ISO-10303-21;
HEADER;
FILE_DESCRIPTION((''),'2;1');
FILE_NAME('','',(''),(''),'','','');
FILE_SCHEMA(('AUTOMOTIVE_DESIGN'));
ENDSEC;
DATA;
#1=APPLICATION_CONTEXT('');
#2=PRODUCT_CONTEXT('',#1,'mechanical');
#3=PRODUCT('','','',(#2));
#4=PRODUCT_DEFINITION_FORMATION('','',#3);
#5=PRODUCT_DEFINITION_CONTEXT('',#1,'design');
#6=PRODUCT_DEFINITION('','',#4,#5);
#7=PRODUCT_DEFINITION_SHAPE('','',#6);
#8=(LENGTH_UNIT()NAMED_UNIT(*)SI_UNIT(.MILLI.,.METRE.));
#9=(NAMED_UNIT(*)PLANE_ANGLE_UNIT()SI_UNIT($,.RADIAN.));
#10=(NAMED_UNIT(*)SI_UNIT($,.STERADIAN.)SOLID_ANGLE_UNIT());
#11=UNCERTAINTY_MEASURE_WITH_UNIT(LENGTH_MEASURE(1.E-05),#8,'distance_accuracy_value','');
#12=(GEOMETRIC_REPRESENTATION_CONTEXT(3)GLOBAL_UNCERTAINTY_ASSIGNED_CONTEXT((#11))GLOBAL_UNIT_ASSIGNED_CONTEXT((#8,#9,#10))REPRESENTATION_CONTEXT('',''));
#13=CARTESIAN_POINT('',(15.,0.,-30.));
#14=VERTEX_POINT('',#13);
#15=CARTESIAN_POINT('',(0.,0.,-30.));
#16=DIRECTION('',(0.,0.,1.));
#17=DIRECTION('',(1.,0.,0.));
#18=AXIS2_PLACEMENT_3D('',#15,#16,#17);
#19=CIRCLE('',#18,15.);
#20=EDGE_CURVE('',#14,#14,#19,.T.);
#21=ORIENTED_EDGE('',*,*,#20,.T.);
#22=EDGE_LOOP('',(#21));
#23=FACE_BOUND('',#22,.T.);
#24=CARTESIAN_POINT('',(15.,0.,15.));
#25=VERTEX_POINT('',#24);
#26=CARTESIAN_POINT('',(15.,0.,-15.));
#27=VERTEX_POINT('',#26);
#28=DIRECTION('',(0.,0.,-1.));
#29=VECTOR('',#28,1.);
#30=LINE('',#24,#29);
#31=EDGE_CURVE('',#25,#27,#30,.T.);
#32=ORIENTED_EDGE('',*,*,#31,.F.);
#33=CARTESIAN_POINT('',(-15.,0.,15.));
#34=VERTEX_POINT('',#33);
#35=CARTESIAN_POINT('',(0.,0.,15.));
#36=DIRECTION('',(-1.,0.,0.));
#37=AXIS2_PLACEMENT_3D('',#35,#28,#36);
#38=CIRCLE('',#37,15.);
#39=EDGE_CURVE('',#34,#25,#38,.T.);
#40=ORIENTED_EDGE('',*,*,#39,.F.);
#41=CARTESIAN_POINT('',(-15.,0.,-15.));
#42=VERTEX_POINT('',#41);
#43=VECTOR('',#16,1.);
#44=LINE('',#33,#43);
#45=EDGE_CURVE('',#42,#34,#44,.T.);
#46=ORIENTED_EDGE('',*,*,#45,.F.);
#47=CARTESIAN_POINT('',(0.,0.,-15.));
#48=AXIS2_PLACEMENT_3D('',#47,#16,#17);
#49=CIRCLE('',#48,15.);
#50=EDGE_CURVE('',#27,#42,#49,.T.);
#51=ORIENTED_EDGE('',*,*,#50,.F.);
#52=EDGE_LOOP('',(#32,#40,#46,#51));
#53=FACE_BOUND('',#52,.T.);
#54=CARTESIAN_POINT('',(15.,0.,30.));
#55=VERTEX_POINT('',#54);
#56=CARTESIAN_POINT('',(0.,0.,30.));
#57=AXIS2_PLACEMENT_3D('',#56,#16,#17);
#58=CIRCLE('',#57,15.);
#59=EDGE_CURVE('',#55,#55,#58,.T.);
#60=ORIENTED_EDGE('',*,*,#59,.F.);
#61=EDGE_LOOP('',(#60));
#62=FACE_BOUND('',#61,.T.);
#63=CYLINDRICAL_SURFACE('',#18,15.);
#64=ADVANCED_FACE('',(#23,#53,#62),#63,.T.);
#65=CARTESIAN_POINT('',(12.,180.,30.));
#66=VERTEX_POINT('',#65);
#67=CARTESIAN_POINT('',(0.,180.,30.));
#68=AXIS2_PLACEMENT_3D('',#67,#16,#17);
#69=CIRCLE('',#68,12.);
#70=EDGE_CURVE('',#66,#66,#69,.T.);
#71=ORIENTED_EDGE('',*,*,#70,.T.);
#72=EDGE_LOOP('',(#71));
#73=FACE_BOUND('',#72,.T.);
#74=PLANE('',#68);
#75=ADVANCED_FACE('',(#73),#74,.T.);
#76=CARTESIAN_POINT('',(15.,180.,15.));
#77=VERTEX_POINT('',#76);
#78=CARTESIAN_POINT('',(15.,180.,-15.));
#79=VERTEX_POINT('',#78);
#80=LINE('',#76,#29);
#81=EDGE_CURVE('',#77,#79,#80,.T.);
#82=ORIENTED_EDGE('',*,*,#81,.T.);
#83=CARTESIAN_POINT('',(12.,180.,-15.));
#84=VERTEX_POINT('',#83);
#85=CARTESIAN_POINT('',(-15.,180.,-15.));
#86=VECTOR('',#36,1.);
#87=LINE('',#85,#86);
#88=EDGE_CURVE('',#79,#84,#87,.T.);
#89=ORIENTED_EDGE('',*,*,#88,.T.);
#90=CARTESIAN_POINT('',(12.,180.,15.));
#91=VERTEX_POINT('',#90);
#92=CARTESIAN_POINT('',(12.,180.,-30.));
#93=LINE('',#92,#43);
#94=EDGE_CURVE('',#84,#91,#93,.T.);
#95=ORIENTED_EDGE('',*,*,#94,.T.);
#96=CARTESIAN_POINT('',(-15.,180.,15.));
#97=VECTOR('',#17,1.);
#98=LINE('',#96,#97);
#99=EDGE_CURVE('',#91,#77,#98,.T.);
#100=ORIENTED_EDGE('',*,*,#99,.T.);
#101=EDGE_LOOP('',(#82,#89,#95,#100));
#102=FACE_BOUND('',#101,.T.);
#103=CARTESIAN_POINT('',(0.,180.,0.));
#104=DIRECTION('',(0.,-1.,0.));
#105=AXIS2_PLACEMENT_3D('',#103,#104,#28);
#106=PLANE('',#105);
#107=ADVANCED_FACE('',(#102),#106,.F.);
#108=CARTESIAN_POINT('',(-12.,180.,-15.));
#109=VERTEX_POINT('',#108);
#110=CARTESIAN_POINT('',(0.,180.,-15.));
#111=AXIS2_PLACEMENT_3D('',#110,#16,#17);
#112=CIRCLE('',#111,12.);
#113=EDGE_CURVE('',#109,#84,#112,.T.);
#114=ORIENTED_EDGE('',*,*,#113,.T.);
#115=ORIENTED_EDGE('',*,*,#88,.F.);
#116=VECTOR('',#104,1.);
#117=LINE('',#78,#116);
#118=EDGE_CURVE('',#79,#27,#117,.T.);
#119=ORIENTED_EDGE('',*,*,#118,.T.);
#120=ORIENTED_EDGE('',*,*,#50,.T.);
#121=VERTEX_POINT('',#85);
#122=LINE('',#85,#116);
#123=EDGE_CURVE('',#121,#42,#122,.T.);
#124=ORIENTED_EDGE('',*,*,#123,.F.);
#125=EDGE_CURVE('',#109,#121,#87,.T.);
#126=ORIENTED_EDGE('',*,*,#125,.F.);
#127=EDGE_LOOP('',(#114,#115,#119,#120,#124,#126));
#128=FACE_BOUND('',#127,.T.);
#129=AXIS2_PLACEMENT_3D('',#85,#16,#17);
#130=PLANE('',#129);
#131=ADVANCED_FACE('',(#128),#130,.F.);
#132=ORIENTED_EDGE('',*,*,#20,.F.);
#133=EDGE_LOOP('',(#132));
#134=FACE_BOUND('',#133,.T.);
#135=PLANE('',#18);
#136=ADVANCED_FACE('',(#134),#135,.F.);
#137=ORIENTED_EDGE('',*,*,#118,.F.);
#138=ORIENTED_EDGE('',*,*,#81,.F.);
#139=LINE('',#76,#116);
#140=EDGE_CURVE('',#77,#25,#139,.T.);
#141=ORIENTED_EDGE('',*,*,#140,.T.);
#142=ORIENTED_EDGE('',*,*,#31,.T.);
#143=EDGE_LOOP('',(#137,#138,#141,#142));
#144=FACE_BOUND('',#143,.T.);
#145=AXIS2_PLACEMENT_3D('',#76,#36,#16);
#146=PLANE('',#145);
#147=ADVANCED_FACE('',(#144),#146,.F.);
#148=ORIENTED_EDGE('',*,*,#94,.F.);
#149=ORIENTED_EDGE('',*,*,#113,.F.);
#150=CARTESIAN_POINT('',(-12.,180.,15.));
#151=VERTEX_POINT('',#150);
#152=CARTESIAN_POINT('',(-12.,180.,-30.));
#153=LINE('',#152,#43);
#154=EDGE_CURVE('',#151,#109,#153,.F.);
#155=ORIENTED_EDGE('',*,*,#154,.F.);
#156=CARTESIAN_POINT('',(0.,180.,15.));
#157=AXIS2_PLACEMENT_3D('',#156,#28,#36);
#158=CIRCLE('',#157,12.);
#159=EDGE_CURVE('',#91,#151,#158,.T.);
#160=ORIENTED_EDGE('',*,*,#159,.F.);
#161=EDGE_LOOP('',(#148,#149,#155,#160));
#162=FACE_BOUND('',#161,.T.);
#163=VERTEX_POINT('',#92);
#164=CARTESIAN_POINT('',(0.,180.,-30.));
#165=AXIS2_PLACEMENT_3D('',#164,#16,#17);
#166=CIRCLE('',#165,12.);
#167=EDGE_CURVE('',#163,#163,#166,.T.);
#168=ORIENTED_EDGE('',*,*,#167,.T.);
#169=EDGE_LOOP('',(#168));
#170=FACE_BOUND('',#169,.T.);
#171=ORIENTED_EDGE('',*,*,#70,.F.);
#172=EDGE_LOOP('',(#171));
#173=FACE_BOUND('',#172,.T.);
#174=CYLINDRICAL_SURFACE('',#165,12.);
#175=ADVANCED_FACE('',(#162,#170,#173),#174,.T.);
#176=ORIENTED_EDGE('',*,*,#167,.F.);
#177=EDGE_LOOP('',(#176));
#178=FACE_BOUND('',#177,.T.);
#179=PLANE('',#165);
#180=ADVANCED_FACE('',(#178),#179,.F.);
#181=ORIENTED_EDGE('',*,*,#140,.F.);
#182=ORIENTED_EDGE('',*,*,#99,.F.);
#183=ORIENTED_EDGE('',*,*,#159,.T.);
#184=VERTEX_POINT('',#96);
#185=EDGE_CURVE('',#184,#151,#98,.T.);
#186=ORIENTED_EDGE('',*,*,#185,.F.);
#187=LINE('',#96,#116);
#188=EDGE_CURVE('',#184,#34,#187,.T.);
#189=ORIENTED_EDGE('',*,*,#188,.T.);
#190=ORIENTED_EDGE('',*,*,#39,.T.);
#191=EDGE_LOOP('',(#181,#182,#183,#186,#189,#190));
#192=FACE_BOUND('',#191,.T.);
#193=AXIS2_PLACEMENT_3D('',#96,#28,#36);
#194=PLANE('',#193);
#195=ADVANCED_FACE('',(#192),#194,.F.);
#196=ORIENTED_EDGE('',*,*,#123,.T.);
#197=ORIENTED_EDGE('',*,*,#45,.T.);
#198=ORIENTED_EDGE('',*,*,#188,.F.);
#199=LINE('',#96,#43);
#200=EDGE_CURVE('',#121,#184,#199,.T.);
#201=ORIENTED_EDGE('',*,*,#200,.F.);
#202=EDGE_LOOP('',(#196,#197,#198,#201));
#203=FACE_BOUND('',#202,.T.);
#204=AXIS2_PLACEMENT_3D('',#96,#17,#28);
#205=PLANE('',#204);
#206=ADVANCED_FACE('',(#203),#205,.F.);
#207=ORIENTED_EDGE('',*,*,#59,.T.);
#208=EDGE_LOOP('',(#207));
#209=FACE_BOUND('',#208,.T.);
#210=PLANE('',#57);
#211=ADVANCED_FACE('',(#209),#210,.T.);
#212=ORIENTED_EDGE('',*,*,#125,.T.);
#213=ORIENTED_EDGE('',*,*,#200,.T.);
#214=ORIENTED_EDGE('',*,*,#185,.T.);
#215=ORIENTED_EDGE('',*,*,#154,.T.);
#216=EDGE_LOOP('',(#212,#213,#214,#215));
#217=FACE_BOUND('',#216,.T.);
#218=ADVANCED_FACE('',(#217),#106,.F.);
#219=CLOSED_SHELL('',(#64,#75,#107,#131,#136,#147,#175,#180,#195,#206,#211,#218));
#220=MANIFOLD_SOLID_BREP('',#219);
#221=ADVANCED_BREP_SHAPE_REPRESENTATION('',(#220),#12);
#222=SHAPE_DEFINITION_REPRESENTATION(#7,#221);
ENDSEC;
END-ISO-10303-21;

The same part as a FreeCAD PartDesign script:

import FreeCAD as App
import Part
import Sketcher

doc = App.newDocument("Part")
body = doc.addObject("PartDesign::Body", "Body")

sketch1 = body.newObject("Sketcher::SketchObject", "Sketch")
sketch1.AttachmentSupport = (doc.getObject("XZ_Plane"), [""])
sketch1.MapMode = "FlatFace"
sketch1.addGeometry([
    Part.LineSegment(App.Vector(-15, -15, 0), App.Vector(-15, 15, 0)),
    Part.LineSegment(App.Vector(-15, 15, 0), App.Vector(15, 15, 0)),
    Part.LineSegment(App.Vector(15, 15, 0), App.Vector(15, -15, 0)),
    Part.LineSegment(App.Vector(15, -15, 0), App.Vector(-15, -15, 0)),
], False)
sketch1.addConstraint([
    Sketcher.Constraint("Coincident", 0, 2, 1, 1),
    Sketcher.Constraint("Coincident", 1, 2, 2, 1),
    Sketcher.Constraint("Coincident", 2, 2, 3, 1),
    Sketcher.Constraint("Coincident", 3, 2, 0, 1),
    Sketcher.Constraint("Vertical", 0),
    Sketcher.Constraint("Horizontal", 1),
    Sketcher.Constraint("Vertical", 2),
    Sketcher.Constraint("Horizontal", 3),
    Sketcher.Constraint("Symmetric", 0, 2, 2, 2, -1, 1),
    Sketcher.Constraint("Equal", 3, 0),
    Sketcher.Constraint("DistanceX", 1, 1, 1, 2, 30.0),
])
pad1 = body.newObject("PartDesign::Pad", "Pad")
pad1.Profile = sketch1
pad1.Length = 180
pad1.Reversed = True

sketch2 = body.newObject("Sketcher::SketchObject", "Sketch001")
sketch2.AttachmentSupport = (doc.getObject("XY_Plane"), [""])
sketch2.MapMode = "FlatFace"
sketch2.addGeometry([
    Part.Circle(App.Vector(0, 0, 0), App.Vector(0, 0, 1), 15),
    Part.Circle(App.Vector(0, 180, 0), App.Vector(0, 0, 1), 12),
], False)
sketch2.addConstraint([
    Sketcher.Constraint("Coincident", 0, 3, -1, 1),
    Sketcher.Constraint("PointOnObject", 1, 3, -2),
    Sketcher.Constraint("Diameter", 0, 30.0),
    Sketcher.Constraint("Diameter", 1, 24.0),
    Sketcher.Constraint("DistanceY", -1, 1, 1, 3, 180.0),
])
pad2 = body.newObject("PartDesign::Pad", "Pad001")
pad2.Profile = sketch2
pad2.Type = "TwoLengths"
pad2.Length = 30
pad2.Length2 = 30

doc.recompute()
